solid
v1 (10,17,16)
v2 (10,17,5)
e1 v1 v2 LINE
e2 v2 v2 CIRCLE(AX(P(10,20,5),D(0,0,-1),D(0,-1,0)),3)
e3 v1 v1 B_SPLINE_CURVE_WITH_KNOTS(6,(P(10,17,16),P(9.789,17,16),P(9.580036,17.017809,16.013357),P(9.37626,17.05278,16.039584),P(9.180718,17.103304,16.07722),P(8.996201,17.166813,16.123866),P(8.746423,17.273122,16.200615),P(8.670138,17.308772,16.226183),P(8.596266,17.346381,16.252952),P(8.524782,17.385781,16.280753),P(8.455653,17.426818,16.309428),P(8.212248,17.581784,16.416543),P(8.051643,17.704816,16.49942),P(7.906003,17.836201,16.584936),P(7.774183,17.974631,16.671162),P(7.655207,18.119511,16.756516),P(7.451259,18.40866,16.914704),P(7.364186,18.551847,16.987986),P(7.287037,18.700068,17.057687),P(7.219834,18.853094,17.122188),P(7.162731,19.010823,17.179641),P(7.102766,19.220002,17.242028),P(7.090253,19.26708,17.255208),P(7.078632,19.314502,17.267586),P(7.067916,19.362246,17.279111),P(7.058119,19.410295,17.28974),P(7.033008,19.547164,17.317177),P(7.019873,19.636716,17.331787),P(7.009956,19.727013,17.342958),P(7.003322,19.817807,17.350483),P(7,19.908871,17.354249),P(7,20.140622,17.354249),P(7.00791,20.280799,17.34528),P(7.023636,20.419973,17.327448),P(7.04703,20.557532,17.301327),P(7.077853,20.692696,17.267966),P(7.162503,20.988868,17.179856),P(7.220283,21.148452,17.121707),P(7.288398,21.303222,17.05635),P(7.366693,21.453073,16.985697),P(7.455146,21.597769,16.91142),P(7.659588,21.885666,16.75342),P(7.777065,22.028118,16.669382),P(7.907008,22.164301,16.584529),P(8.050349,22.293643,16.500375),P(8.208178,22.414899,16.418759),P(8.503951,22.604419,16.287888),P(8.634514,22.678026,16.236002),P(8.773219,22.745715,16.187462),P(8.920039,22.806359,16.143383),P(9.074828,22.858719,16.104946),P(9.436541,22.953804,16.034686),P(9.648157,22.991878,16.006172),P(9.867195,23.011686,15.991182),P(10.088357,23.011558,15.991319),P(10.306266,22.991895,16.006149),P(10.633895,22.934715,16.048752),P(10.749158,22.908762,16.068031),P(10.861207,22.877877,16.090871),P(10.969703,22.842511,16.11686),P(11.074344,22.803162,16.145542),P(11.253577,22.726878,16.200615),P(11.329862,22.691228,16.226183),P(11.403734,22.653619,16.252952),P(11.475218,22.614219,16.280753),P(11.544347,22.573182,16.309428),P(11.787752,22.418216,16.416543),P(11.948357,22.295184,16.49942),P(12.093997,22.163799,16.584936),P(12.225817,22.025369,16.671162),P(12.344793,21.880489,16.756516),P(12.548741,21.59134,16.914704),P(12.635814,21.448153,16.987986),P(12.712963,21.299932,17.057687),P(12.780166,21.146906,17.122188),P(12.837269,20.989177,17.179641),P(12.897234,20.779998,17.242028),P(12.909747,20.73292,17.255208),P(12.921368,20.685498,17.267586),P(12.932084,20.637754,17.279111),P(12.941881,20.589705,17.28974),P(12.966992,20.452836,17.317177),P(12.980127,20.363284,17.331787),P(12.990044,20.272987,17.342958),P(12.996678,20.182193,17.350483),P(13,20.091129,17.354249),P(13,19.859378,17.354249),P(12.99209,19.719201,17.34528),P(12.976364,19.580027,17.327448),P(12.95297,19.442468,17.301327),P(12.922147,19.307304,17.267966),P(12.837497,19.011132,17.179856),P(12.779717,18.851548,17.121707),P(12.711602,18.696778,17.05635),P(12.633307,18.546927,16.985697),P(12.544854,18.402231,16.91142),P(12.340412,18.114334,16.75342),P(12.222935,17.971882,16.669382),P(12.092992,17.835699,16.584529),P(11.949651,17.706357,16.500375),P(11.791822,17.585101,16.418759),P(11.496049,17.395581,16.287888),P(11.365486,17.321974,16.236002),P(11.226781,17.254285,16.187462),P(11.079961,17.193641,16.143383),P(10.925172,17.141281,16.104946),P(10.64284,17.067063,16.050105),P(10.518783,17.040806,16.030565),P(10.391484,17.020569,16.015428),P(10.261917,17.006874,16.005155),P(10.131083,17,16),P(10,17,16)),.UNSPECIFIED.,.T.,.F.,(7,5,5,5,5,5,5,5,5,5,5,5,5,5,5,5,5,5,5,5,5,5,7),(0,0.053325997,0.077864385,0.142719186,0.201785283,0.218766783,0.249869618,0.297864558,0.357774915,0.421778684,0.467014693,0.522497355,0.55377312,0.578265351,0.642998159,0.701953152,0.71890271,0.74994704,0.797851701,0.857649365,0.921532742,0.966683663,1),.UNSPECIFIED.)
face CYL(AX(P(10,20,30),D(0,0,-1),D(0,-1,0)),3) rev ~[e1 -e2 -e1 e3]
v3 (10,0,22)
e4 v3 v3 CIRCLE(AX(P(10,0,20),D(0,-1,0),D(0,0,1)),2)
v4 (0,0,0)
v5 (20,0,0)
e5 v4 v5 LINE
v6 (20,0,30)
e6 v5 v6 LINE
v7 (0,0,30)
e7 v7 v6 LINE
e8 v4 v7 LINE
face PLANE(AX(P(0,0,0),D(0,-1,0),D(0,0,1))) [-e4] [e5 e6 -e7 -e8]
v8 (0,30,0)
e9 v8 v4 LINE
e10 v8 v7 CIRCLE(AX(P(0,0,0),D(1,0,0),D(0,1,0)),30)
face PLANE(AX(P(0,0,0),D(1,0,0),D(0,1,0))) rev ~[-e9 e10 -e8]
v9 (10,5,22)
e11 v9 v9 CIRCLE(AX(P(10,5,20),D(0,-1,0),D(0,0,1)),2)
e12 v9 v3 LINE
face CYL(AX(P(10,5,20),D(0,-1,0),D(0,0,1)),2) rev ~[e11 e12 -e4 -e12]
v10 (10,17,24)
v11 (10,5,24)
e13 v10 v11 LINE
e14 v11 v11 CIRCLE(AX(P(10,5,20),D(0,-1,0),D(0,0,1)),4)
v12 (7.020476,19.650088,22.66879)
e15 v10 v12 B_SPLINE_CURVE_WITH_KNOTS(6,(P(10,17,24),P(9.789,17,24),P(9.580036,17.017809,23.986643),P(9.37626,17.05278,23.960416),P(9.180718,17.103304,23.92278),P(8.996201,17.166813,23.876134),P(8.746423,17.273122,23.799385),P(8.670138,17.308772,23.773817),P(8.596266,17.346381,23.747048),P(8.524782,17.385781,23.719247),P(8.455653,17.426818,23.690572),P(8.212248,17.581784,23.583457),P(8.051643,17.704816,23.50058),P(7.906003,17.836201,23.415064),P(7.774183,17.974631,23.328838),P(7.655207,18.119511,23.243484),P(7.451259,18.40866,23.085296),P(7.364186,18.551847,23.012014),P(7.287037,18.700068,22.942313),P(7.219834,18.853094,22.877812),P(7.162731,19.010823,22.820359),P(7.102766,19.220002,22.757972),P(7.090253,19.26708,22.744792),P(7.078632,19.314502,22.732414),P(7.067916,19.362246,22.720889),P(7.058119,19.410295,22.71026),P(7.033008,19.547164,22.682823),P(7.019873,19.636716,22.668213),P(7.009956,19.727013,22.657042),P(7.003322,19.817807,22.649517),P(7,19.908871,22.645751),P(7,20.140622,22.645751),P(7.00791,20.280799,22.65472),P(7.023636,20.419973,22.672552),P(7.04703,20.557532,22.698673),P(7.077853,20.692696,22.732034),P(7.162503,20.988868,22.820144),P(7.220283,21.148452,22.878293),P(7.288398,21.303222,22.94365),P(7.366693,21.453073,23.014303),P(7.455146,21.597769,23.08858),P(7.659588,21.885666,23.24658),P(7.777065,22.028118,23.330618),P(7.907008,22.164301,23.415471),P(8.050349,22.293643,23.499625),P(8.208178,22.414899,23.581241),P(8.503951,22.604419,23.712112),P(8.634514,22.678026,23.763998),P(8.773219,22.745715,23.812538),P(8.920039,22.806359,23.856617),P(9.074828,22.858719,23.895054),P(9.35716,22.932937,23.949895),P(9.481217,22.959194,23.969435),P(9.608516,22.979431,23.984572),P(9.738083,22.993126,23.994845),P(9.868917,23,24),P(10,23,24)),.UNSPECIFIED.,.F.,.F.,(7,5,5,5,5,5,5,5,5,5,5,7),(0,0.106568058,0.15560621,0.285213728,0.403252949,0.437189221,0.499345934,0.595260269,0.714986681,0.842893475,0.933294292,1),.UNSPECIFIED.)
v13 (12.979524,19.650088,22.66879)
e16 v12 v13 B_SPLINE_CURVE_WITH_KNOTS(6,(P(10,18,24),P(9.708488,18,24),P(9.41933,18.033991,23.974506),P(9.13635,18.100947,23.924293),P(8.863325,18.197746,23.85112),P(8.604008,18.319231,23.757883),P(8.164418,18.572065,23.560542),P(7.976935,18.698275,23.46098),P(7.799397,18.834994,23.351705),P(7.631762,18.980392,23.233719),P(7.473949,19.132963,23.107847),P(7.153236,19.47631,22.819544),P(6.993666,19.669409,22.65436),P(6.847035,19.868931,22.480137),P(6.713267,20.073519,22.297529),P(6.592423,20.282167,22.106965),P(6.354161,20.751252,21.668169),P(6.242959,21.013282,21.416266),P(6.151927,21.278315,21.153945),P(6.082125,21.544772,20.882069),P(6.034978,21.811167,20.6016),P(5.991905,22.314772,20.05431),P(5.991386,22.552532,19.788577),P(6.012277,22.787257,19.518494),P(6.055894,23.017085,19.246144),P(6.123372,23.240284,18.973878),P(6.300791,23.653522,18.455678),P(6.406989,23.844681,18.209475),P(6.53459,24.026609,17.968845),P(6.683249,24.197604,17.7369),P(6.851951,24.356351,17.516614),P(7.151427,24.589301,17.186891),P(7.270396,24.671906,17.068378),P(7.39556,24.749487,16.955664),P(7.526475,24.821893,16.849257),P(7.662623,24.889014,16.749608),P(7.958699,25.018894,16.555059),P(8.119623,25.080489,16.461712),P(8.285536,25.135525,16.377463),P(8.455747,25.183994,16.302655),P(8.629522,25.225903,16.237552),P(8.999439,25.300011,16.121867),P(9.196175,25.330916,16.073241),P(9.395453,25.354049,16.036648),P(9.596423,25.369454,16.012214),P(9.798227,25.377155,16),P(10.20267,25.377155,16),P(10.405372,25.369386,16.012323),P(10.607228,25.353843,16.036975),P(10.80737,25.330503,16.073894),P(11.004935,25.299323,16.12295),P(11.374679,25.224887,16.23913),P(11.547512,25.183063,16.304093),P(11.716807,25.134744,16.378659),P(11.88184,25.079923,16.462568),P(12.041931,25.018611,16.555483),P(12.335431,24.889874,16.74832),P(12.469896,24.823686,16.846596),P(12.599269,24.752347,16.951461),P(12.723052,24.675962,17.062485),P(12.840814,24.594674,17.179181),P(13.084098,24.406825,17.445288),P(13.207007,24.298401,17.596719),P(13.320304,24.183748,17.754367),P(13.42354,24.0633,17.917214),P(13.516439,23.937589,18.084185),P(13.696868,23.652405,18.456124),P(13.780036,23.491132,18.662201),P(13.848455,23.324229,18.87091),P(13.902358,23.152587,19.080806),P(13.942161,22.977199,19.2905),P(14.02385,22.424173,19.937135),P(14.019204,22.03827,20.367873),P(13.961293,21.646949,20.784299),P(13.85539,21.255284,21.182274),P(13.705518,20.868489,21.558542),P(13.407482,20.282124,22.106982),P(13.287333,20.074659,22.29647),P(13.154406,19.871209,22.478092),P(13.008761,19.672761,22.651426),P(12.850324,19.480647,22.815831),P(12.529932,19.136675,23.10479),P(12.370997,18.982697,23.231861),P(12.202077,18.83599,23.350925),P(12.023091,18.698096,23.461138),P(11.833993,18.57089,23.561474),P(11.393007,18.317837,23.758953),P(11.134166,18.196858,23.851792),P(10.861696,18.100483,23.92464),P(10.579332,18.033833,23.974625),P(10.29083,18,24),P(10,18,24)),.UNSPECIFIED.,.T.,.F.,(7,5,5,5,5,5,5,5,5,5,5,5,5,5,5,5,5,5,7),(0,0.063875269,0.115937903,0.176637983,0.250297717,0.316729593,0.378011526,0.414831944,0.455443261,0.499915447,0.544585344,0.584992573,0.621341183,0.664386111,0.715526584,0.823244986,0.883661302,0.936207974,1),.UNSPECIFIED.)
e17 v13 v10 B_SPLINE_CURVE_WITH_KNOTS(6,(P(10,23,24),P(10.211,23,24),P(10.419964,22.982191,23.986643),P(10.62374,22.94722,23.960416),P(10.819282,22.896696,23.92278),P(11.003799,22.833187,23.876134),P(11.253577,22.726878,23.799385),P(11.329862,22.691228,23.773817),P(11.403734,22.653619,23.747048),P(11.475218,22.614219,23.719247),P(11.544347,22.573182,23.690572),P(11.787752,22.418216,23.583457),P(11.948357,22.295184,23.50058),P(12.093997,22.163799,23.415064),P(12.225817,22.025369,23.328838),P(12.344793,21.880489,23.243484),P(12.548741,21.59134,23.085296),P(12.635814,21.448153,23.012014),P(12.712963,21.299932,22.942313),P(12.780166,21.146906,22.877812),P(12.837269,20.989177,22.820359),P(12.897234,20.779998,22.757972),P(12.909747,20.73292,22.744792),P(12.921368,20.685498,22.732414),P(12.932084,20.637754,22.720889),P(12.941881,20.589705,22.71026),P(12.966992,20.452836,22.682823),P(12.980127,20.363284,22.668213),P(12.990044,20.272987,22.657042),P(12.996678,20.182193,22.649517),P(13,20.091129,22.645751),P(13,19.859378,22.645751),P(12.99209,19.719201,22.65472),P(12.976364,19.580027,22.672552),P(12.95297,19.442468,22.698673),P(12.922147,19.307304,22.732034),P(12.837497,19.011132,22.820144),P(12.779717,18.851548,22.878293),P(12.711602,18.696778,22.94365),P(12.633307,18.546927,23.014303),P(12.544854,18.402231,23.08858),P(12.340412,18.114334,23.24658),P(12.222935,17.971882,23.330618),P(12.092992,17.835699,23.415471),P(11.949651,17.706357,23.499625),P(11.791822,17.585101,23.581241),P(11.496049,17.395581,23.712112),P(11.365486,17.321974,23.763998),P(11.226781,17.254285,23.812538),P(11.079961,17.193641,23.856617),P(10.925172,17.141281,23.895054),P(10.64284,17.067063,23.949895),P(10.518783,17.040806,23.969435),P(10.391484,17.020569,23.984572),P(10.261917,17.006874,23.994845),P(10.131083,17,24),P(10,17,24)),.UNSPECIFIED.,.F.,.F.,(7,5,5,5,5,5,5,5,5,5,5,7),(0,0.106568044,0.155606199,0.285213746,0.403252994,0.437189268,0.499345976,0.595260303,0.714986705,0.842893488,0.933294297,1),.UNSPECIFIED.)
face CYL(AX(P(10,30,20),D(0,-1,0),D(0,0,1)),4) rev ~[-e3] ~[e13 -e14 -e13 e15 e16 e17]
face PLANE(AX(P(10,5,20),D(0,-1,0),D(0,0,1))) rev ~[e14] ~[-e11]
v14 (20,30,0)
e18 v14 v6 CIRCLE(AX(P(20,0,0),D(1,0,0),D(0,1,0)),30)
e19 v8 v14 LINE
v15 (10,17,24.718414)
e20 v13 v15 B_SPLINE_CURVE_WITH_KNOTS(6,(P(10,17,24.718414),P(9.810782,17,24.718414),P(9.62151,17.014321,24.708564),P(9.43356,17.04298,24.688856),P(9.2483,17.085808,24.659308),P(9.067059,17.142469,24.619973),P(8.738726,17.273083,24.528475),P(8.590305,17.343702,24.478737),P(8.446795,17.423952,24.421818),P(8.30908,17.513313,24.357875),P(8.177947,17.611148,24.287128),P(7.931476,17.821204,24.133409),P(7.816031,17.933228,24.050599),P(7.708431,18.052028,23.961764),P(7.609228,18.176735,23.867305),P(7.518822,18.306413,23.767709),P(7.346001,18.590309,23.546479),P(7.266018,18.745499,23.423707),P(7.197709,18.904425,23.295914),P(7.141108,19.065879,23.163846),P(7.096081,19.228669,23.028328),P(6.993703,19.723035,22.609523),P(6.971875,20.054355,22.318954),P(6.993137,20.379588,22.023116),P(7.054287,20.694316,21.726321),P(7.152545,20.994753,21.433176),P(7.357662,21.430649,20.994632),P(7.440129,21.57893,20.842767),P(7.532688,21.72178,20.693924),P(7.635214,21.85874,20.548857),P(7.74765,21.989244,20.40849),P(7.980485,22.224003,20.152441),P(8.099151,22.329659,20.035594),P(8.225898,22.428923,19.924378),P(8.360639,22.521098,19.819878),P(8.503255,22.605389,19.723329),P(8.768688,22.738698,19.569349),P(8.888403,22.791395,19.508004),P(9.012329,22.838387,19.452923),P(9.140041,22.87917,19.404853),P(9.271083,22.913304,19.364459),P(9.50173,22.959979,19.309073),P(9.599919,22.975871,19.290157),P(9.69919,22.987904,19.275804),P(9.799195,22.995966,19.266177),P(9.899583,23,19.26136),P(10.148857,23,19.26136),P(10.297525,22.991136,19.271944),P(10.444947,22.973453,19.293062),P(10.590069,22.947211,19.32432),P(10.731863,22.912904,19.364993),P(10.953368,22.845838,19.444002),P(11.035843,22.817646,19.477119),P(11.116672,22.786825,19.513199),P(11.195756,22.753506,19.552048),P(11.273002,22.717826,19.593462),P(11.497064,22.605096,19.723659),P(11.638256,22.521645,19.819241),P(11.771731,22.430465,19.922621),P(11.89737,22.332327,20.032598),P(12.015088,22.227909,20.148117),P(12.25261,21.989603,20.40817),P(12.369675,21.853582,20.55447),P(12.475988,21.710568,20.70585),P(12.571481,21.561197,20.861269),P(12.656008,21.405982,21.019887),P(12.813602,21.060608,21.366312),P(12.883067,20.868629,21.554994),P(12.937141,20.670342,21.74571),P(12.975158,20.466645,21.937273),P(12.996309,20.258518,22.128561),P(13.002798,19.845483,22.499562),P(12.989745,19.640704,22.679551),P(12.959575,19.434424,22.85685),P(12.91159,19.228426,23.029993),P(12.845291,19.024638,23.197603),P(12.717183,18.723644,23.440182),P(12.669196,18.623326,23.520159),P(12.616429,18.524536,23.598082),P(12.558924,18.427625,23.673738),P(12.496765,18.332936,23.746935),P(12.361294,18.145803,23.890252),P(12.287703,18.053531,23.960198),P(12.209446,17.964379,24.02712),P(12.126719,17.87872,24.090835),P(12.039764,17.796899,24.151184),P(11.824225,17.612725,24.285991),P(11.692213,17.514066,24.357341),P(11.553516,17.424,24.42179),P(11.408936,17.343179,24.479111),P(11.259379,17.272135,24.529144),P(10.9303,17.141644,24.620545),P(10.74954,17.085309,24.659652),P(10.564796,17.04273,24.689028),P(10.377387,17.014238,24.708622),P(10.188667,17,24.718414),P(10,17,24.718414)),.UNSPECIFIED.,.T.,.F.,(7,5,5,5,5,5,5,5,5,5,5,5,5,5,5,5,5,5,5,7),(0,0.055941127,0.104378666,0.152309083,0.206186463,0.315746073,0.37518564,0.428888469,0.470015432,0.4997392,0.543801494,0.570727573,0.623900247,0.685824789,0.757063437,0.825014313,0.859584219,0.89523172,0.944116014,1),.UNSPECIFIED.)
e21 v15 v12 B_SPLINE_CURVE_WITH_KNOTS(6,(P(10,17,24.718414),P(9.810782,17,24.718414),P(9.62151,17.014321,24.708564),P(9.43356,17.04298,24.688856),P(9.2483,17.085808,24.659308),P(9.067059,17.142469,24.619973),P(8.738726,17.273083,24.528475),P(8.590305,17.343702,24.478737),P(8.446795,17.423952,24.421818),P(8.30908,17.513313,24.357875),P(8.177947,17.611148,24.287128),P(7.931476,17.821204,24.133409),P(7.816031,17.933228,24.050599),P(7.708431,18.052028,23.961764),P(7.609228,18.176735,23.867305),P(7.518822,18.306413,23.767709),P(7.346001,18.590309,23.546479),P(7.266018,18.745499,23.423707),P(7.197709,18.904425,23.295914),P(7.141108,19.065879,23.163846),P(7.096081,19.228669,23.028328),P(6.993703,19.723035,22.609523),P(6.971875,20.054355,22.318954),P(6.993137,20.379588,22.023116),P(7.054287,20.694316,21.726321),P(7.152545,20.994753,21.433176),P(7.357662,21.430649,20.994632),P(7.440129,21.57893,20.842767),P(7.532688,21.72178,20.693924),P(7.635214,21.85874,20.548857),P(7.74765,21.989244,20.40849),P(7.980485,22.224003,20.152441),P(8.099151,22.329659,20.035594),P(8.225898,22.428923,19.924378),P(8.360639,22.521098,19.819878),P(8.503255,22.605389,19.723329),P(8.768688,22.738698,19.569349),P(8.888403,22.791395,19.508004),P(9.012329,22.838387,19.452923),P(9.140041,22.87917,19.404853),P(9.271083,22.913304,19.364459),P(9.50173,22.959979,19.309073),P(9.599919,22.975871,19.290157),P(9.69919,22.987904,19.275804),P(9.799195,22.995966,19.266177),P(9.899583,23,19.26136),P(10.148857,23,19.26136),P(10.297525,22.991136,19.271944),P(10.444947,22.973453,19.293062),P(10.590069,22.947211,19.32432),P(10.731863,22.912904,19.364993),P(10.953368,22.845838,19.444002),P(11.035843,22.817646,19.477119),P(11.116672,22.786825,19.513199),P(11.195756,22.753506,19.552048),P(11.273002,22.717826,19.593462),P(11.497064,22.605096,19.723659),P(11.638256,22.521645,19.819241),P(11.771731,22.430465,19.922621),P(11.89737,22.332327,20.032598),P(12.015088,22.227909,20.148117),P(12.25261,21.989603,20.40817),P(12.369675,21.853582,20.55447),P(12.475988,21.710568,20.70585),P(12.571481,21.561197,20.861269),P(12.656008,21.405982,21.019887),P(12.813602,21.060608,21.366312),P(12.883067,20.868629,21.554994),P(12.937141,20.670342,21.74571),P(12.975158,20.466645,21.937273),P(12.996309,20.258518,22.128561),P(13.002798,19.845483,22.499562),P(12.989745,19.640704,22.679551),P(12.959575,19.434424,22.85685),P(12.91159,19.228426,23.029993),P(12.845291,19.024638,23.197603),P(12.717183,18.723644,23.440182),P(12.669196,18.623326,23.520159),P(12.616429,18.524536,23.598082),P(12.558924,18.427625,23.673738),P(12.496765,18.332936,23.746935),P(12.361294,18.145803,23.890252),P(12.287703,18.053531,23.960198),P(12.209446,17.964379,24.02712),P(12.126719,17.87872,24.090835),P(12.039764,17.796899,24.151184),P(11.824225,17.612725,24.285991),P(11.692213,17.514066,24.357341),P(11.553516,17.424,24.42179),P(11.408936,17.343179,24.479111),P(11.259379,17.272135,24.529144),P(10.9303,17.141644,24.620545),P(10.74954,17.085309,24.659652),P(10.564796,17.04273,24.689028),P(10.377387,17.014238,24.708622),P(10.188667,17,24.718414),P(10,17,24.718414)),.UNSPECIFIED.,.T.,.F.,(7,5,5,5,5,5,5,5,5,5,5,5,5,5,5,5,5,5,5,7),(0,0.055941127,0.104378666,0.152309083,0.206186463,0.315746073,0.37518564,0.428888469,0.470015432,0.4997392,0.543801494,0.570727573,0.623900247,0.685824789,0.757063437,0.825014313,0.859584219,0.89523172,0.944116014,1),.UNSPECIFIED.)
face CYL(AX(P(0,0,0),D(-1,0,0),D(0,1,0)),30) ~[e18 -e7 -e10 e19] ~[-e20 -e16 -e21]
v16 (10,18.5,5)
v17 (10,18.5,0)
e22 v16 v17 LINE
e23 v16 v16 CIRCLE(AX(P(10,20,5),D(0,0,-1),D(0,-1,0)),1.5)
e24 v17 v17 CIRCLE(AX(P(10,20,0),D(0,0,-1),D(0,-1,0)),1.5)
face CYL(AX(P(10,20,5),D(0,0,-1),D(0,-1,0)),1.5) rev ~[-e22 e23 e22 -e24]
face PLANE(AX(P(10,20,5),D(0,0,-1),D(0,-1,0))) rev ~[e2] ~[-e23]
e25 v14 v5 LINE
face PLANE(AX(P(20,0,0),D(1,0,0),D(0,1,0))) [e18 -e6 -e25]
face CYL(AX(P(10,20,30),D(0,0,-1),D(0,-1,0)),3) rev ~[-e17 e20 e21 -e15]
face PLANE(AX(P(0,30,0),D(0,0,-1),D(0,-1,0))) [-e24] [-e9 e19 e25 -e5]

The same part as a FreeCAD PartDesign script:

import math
import FreeCAD as App
import Part
import Sketcher

V = App.Vector

doc = App.newDocument("Part")
body = doc.addObject("PartDesign::Body", "Body")

# Sketch on YZ plane
sketch1 = body.newObject("Sketcher::SketchObject", "Sketch")
sketch1.AttachmentSupport = (doc.getObject("YZ_Plane"), [""])
sketch1.MapMode = "FlatFace"
sketch1.addGeometry([
    Part.LineSegment(V(0, 30, 0), V(0, 0, 0)),
    Part.LineSegment(V(0, 0, 0), V(30, 0, 0)),
    Part.ArcOfCircle(Part.Circle(V(0, 0, 0), V(0, 0, 1), 30), math.radians(0), math.radians(90)),
], False)
sketch1.addConstraint([
    Sketcher.Constraint("Coincident", 0, 2, 1, 1),
    Sketcher.Constraint("Coincident", 1, 2, 2, 1),
    Sketcher.Constraint("Coincident", 2, 2, 0, 1),
    Sketcher.Constraint("Vertical", 0),
    Sketcher.Constraint("Horizontal", 1),
    Sketcher.Constraint("Coincident", 2, 3, -1, 1),
    Sketcher.Constraint("Coincident", 0, 2, -1, 1),
    Sketcher.Constraint("Radius", 2, 30.0),
])
pad1 = body.newObject("PartDesign::Pad", "Pad")
pad1.Profile = sketch1
pad1.Length = 20

# Sketch on XZ plane
sketch2 = body.newObject("Sketcher::SketchObject", "Sketch001")
sketch2.AttachmentSupport = (doc.getObject("XZ_Plane"), [""])
sketch2.MapMode = "FlatFace"
sketch2.AttachmentOffset = App.Placement(V(0, 0, -30), App.Rotation())
sketch2.addGeometry(Part.Circle(V(10, 20, 0), V(0, 0, 1), 2), False)
sketch2.addConstraint([
    Sketcher.Constraint("Diameter", 0, 4.0),
    Sketcher.Constraint("DistanceX", -1, 1, 0, 3, 10.0),
    Sketcher.Constraint("DistanceY", -1, 1, 0, 3, 20.0),
])
doc.recompute()
hole = body.newObject("PartDesign::Hole", "Hole")
hole.Profile = sketch2
hole.ThreadType = "None"
hole.Diameter = 4
hole.DepthType = "ThroughAll"
hole.HoleCutType = "Counterbore"
hole.HoleCutDiameter = 8
hole.HoleCutDepth = 25
hole.Reversed = True

# Sketch on XY plane
sketch3 = body.newObject("Sketcher::SketchObject", "Sketch002")
sketch3.AttachmentSupport = (doc.getObject("XY_Plane"), [""])
sketch3.MapMode = "FlatFace"
sketch3.AttachmentOffset = App.Placement(V(0, 0, 30), App.Rotation())
sketch3.addGeometry(Part.Circle(V(10, 20, 0), V(0, 0, 1), 1.5), False)
sketch3.addConstraint([
    Sketcher.Constraint("Diameter", 0, 3.0),
    Sketcher.Constraint("DistanceX", -1, 1, 0, 3, 10.0),
    Sketcher.Constraint("DistanceY", -1, 1, 0, 3, 20.0),
])
doc.recompute()
hole2 = body.newObject("PartDesign::Hole", "Hole001")
hole2.Profile = sketch3
hole2.ThreadType = "None"
hole2.Diameter = 3
hole2.DepthType = "ThroughAll"
hole2.HoleCutType = "Counterbore"
hole2.HoleCutDiameter = 6
hole2.HoleCutDepth = 25

doc.recompute()
